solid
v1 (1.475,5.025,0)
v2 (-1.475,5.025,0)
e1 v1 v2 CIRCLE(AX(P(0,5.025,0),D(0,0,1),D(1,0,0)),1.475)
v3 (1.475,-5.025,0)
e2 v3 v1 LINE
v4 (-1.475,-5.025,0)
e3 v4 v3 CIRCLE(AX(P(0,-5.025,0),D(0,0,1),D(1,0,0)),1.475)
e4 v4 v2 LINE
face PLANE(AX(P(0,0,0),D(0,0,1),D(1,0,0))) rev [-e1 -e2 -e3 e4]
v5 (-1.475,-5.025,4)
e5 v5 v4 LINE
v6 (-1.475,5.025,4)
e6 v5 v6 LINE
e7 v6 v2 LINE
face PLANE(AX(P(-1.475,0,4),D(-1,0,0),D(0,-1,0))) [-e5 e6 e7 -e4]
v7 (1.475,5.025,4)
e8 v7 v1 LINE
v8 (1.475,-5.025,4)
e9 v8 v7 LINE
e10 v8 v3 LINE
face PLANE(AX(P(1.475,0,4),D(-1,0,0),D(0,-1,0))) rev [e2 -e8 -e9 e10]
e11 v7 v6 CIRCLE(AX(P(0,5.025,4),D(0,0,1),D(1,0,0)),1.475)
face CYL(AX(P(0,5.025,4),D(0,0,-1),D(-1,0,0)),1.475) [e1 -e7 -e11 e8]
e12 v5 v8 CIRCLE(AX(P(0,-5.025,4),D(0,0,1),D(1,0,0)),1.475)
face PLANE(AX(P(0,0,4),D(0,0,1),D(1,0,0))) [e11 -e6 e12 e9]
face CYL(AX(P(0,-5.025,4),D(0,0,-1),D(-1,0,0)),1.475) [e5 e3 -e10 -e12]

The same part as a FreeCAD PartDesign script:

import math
import FreeCAD as App
import Part
import Sketcher
from FreeCAD import Vector

doc = App.newDocument("Part")
body = doc.addObject("PartDesign::Body", "Body")

# Sketch on XY plane
sketch1 = body.newObject("Sketcher::SketchObject", "Sketch")
sketch1.AttachmentSupport = (doc.getObject("XY_Plane"), [""])
sketch1.MapMode = "FlatFace"
sketch1.addGeometry(Part.ArcOfCircle(Part.Circle(Vector(0, -5.025, 0), Vector(0, 0, 1), 1.475), math.radians(-90), math.radians(0)), False)
sketch1.addGeometry(Part.LineSegment(Vector(1.475, -5.025, 0), Vector(1.475, 5.025, 0)), False)
sketch1.addGeometry(Part.ArcOfCircle(Part.Circle(Vector(0, 5.025, 0), Vector(0, 0, 1), 1.475), math.radians(0), math.radians(90)), False)
sketch1.addGeometry(Part.ArcOfCircle(Part.Circle(Vector(0, 5.025, 0), Vector(0, 0, 1), 1.475), math.radians(90), math.radians(180)), False)
sketch1.addGeometry(Part.LineSegment(Vector(-1.475, 5.025, 0), Vector(-1.475, -5.025, 0)), False)
sketch1.addGeometry(Part.ArcOfCircle(Part.Circle(Vector(0, -5.025, 0), Vector(0, 0, 1), 1.475), math.radians(-180), math.radians(-90)), False)
sketch1.addConstraint(Sketcher.Constraint("Tangent", 0, 2, 1, 1))
sketch1.addConstraint(Sketcher.Constraint("Tangent", 1, 2, 2, 1))
sketch1.addConstraint(Sketcher.Constraint("Tangent", 2, 2, 3, 1))
sketch1.addConstraint(Sketcher.Constraint("Tangent", 3, 2, 4, 1))
sketch1.addConstraint(Sketcher.Constraint("Tangent", 4, 2, 5, 1))
sketch1.addConstraint(Sketcher.Constraint("Tangent", 5, 2, 0, 1))
sketch1.addConstraint(Sketcher.Constraint("Vertical", 1))
sketch1.addConstraint(Sketcher.Constraint("Vertical", 4))
sketch1.addConstraint(Sketcher.Constraint("Equal", 0, 2))
sketch1.addConstraint(Sketcher.Constraint("Equal", 2, 3))
sketch1.addConstraint(Sketcher.Constraint("Symmetric", 0, 3, 2, 3, -1, 1))
sketch1.addConstraint(Sketcher.Constraint("PointOnObject", 2, 2, -2))
sketch1.addConstraint(Sketcher.Constraint("PointOnObject", 5, 2, -2))
sketch1.addConstraint(Sketcher.Constraint("Radius", 0, 1.475))
sketch1.addConstraint(Sketcher.Constraint("DistanceY", 1, 1, 1, 2, 10.05))
pad1 = body.newObject("PartDesign::Pad", "Pad")
pad1.Profile = sketch1
pad1.Length = 4

doc.recompute()
